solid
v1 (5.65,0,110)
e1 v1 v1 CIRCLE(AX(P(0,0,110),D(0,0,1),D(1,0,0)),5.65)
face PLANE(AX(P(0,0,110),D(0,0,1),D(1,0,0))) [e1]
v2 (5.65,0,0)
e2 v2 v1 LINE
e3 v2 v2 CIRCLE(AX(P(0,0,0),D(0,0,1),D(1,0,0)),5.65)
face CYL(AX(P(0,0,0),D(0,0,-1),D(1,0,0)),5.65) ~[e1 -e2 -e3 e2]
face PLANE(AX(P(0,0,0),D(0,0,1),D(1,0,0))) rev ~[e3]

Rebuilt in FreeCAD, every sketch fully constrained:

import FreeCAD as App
import Part
import Sketcher

V = App.Vector
Q = App.Units.Quantity

doc = App.newDocument("Part")
body = doc.addObject("PartDesign::Body", "Body")

# Sketch on XY plane
sketch1 = doc.addObject("Sketcher::SketchObject", "Sketch")
body.addObject(sketch1)
sketch1.AttachmentSupport = (doc.XY_Plane, [""])
sketch1.MapMode = "FlatFace"
sketch1.addGeometry(Part.Circle(V(0, 0, 0), V(0, 0, 1), 6), False)
sketch1.addConstraint(Sketcher.Constraint("Coincident", 0, 3, -1, 1))
sketch1.addConstraint(Sketcher.Constraint("Diameter", 0, Q("11.3 mm")))
pad1 = doc.addObject("PartDesign::Pad", "Pad")
body.addObject(pad1)
pad1.Profile = sketch1
pad1.Length = 110

doc.recompute()
